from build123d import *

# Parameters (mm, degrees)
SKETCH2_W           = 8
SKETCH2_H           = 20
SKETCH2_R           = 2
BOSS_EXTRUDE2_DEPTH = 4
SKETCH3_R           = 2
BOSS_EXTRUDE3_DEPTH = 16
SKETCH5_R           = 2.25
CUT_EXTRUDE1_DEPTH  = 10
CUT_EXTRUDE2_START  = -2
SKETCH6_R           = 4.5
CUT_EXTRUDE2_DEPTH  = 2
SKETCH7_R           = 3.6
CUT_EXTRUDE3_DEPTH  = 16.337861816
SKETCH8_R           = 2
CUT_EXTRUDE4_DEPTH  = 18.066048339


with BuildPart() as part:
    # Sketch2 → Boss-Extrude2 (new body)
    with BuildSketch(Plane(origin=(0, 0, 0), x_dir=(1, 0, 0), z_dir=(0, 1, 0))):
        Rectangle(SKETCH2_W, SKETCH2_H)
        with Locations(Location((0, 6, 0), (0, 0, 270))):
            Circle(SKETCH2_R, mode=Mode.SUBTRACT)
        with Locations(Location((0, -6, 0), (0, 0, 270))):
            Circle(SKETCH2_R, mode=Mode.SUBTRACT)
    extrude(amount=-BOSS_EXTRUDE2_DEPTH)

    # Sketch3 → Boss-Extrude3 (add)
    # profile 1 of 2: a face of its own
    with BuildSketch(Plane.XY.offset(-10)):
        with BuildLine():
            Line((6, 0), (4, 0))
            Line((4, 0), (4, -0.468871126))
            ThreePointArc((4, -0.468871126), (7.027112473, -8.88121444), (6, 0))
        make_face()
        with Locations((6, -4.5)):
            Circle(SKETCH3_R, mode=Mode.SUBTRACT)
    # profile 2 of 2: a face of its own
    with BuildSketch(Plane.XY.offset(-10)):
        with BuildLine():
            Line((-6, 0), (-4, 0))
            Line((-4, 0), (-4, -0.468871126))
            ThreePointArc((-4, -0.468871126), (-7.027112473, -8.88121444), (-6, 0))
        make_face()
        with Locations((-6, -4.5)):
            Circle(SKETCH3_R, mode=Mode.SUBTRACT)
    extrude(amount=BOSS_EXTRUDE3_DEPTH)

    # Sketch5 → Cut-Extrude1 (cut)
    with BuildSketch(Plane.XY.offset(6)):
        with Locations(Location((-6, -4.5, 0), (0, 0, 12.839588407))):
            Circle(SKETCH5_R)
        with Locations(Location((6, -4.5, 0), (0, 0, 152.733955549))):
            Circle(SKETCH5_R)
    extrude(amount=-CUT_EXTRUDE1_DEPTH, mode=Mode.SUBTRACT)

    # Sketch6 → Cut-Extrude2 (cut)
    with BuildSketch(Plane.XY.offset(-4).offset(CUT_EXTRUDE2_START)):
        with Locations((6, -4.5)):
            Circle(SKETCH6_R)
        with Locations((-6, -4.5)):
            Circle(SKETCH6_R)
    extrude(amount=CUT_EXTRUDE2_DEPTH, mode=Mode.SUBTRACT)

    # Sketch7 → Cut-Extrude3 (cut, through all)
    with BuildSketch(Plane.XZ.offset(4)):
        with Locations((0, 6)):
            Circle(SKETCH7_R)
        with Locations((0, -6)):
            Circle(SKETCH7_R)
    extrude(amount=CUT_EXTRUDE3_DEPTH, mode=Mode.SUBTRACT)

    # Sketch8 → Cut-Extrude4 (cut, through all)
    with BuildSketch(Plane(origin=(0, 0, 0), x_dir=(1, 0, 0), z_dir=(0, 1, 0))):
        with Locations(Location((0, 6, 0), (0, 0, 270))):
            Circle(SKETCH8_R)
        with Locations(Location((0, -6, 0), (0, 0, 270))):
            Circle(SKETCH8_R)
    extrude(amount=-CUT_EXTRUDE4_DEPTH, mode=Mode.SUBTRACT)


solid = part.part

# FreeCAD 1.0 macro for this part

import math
import FreeCAD as App
import Part
import Sketcher


def add_polygon(sketch, points):
    """Adds a closed chain of lines whose ends are joined by coincident constraints."""
    first, n = sketch.GeometryCount, len(points)
    for a, b in zip(points, points[1:] + points[:1]):
        sketch.addGeometry(Part.LineSegment(App.Vector(*a, 0), App.Vector(*b, 0)), False)
    for i in range(n):
        sketch.addConstraint(Sketcher.Constraint("Coincident", first + i, 2, first + (i + 1) % n, 1))

doc = App.newDocument("Part")
params = doc.addObject("Spreadsheet::Sheet", "Params")
for row, (alias, value) in enumerate([
    ("sketch1_diameter", "4 mm"),
    ("sketch1_width", "8 mm"),
    ("sketch1_height", "20 mm"),
    ("pad1_length", "4 mm"),
    ("sketch2_diameter", "4 mm"),
    ("sketch2_radius", "4.5 mm"),
    ("sketch2_width", "2 mm"),
    ("pad2_length", "16 mm"),
    ("sketch3_diameter", "4.5 mm"),
    ("pocket1_length", "10 mm"),
    ("sketch4_diameter", "9 mm"),
    ("pocket2_length", "2 mm"),
    ("sketch5_diameter", "7.2 mm"),
    ("sketch6_diameter", "4 mm"),
], start=1):
    params.set(f"A{row}", alias)
    params.set(f"B{row}", "=" + value)
    params.setAlias(f"B{row}", alias)

body = doc.addObject("PartDesign::Body", "Body")

# Sketch on XZ plane
sketch1 = body.newObject("Sketcher::SketchObject", "Sketch")
sketch1.AttachmentSupport = (doc.getObject("XZ_Plane"), [""])
sketch1.MapMode = "FlatFace"
add_polygon(sketch1, [(-4, -10), (-4, 10), (4, 10), (4, -10)])  # lines 0-3
sketch1.addGeometry(Part.Circle(App.Vector(0, 6, 0), App.Vector(0, 0, 1), 2), False)  # 4
sketch1.addGeometry(Part.Circle(App.Vector(0, -6, 0), App.Vector(0, 0, 1), 2), False)  # 5
sketch1.addConstraint([
    Sketcher.Constraint("Vertical", 0),
    Sketcher.Constraint("Horizontal", 1),
    Sketcher.Constraint("Vertical", 2),
    Sketcher.Constraint("Horizontal", 3),
    Sketcher.Constraint("Equal", 4, 5),
    Sketcher.Constraint("Symmetric", 4, 3, 5, 3, -1, 1),
    Sketcher.Constraint("Symmetric", 0, 2, 2, 2, -1, 1),
    Sketcher.Constraint("PointOnObject", 4, 3, -2),
    Sketcher.Constraint("Diameter", 4, 4.0),
    Sketcher.Constraint("DistanceX", 1, 1, 1, 2, 8.0),
    Sketcher.Constraint("DistanceY", 0, 1, 0, 2, 20.0),
    Sketcher.Constraint("DistanceY", -1, 1, 4, 3, 6.0),
])
sketch1.setExpression("Constraints[12]", "Params.sketch1_diameter")
sketch1.setExpression("Constraints[13]", "Params.sketch1_width")
sketch1.setExpression("Constraints[14]", "Params.sketch1_height")
pad1 = body.newObject("PartDesign::Pad", "Pad")
pad1.Profile = sketch1
pad1.setExpression("Length", "Params.pad1_length")

# Sketch on XY plane
sketch2 = body.newObject("Sketcher::SketchObject", "Sketch001")
sketch2.AttachmentSupport = (doc.getObject("XY_Plane"), [""])
sketch2.MapMode = "FlatFace"
sketch2.AttachmentOffset = App.Placement(App.Vector(0, 0, -10), App.Rotation())
sketch2.addGeometry([
    Part.LineSegment(App.Vector(6, 0, 0), App.Vector(4, 0, 0)),  # 0
    Part.LineSegment(App.Vector(4, 0, 0), App.Vector(4, -0.47, 0)),  # 1
    Part.ArcOfCircle(Part.Circle(App.Vector(6, -4.5, 0), App.Vector(0, 0, 1), 4.5), math.radians(116), math.radians(450)),  # 2
    Part.Circle(App.Vector(6, -4.5, 0), App.Vector(0, 0, 1), 2),  # 3
    Part.LineSegment(App.Vector(-4, 0, 0), App.Vector(-6, 0, 0)),  # 4
    Part.ArcOfCircle(Part.Circle(App.Vector(-6, -4.5, 0), App.Vector(0, 0, 1), 4.5), math.radians(90), math.radians(424)),  # 5
    Part.LineSegment(App.Vector(-4, -0.47, 0), App.Vector(-4, 0, 0)),  # 6
    Part.Circle(App.Vector(-6, -4.5, 0), App.Vector(0, 0, 1), 2),  # 7
], False)
sketch2.addConstraint([
    Sketcher.Constraint("Coincident", 0, 2, 1, 1),
    Sketcher.Constraint("Coincident", 1, 2, 2, 1),
    Sketcher.Constraint("Tangent", 2, 2, 0, 1),
    Sketcher.Constraint("Tangent", 4, 2, 5, 1),
    Sketcher.Constraint("Coincident", 5, 2, 6, 1),
    Sketcher.Constraint("Coincident", 6, 2, 4, 1),
    Sketcher.Constraint("Horizontal", 0),
    Sketcher.Constraint("Vertical", 1),
    Sketcher.Constraint("Horizontal", 4),
    Sketcher.Constraint("Vertical", 6),
    Sketcher.Constraint("Coincident", 3, 3, 2, 3),
    Sketcher.Constraint("Coincident", 7, 3, 5, 3),
    Sketcher.Constraint("Equal", 2, 5),
    Sketcher.Constraint("Equal", 3, 7),
    Sketcher.Constraint("Symmetric", 2, 2, 4, 2, -1, 1),
    Sketcher.Constraint("Symmetric", 1, 2, 5, 2, -2),
    Sketcher.Constraint("Diameter", 3, 4.0),
    Sketcher.Constraint("Radius", 2, 4.5),
    Sketcher.Constraint("DistanceX", 0, 2, 0, 1, 2.0),
    Sketcher.Constraint("DistanceX", -1, 1, 2, 3, 6.0),
])
sketch2.setExpression("Constraints[16]", "Params.sketch2_diameter")
sketch2.setExpression("Constraints[17]", "Params.sketch2_radius")
sketch2.setExpression("Constraints[18]", "Params.sketch2_width")
pad2 = body.newObject("PartDesign::Pad", "Pad001")
pad2.Profile = sketch2
pad2.setExpression("Length", "Params.pad2_length")

# Sketch on XY plane
sketch3 = body.newObject("Sketcher::SketchObject", "Sketch002")
sketch3.AttachmentSupport = (doc.getObject("XY_Plane"), [""])
sketch3.MapMode = "FlatFace"
sketch3.AttachmentOffset = App.Placement(App.Vector(0, 0, 6), App.Rotation())
sketch3.addGeometry([
    Part.Circle(App.Vector(-6, -4.5, 0), App.Vector(0, 0, 1), 2.2),
    Part.Circle(App.Vector(6, -4.5, 0), App.Vector(0, 0, 1), 2.2),
], False)
sketch3.addConstraint([
    Sketcher.Constraint("Equal", 0, 1),
    Sketcher.Constraint("Symmetric", 0, 3, 1, 3, -2),
    Sketcher.Constraint("Diameter", 0, 4.5),
    Sketcher.Constraint("DistanceX", 0, 3, -1, 1, 6.0),
    Sketcher.Constraint("DistanceY", 0, 3, -1, 1, 4.5),
])
sketch3.setExpression("Constraints[2]", "Params.sketch3_diameter")
pocket1 = body.newObject("PartDesign::Pocket", "Pocket")
pocket1.Profile = sketch3
pocket1.setExpression("Length", "Params.pocket1_length")

# Sketch on XY plane
sketch4 = body.newObject("Sketcher::SketchObject", "Sketch003")
sketch4.AttachmentSupport = (doc.getObject("XY_Plane"), [""])
sketch4.MapMode = "FlatFace"
sketch4.AttachmentOffset = App.Placement(App.Vector(0, 0, -6), App.Rotation())
sketch4.addGeometry([
    Part.Circle(App.Vector(6, -4.5, 0), App.Vector(0, 0, 1), 4.5),
    Part.Circle(App.Vector(-6, -4.5, 0), App.Vector(0, 0, 1), 4.5),
], False)
sketch4.addConstraint([
    Sketcher.Constraint("Equal", 0, 1),
    Sketcher.Constraint("Symmetric", 0, 3, 1, 3, -2),
    Sketcher.Constraint("Diameter", 0, 9.0),
    Sketcher.Constraint("DistanceX", -1, 1, 0, 3, 6.0),
    Sketcher.Constraint("DistanceY", 0, 3, -1, 1, 4.5),
])
sketch4.setExpression("Constraints[2]", "Params.sketch4_diameter")
pocket2 = body.newObject("PartDesign::Pocket", "Pocket001")
pocket2.Profile = sketch4
pocket2.setExpression("Length", "Params.pocket2_length")
pocket2.Reversed = True

# Sketch on XZ plane
sketch5 = body.newObject("Sketcher::SketchObject", "Sketch004")
sketch5.AttachmentSupport = (doc.getObject("XZ_Plane"), [""])
sketch5.MapMode = "FlatFace"
sketch5.AttachmentOffset = App.Placement(App.Vector(0, 0, 4), App.Rotation())
sketch5.addGeometry([
    Part.Circle(App.Vector(0, 6, 0), App.Vector(0, 0, 1), 3.6),
    Part.Circle(App.Vector(0, -6, 0), App.Vector(0, 0, 1), 3.6),
], False)
sketch5.addConstraint([
    Sketcher.Constraint("Equal", 0, 1),
    Sketcher.Constraint("Symmetric", 0, 3, 1, 3, -1, 1),
    Sketcher.Constraint("PointOnObject", 0, 3, -2),
    Sketcher.Constraint("Diameter", 0, 7.2),
    Sketcher.Constraint("DistanceY", -1, 1, 0, 3, 6.0),
])
sketch5.setExpression("Constraints[3]", "Params.sketch5_diameter")
pocket3 = body.newObject("PartDesign::Pocket", "Pocket002")
pocket3.Profile = sketch5
pocket3.Type = "ThroughAll"
pocket3.Reversed = True

# Sketch on XZ plane
sketch6 = body.newObject("Sketcher::SketchObject", "Sketch005")
sketch6.AttachmentSupport = (doc.getObject("XZ_Plane"), [""])
sketch6.MapMode = "FlatFace"
sketch6.addGeometry([
    Part.Circle(App.Vector(0, -6, 0), App.Vector(0, 0, 1), 2),
    Part.Circle(App.Vector(0, 6, 0), App.Vector(0, 0, 1), 2),
], False)
sketch6.addConstraint([
    Sketcher.Constraint("Equal", 0, 1),
    Sketcher.Constraint("Symmetric", 0, 3, 1, 3, -1, 1),
    Sketcher.Constraint("PointOnObject", 0, 3, -2),
    Sketcher.Constraint("Diameter", 0, 4.0),
    Sketcher.Constraint("DistanceY", 0, 3, -1, 1, 6.0),
])
sketch6.setExpression("Constraints[3]", "Params.sketch6_diameter")
pocket4 = body.newObject("PartDesign::Pocket", "Pocket003")
pocket4.Profile = sketch6
pocket4.Type = "ThroughAll"
pocket4.Reversed = True

doc.recompute()
